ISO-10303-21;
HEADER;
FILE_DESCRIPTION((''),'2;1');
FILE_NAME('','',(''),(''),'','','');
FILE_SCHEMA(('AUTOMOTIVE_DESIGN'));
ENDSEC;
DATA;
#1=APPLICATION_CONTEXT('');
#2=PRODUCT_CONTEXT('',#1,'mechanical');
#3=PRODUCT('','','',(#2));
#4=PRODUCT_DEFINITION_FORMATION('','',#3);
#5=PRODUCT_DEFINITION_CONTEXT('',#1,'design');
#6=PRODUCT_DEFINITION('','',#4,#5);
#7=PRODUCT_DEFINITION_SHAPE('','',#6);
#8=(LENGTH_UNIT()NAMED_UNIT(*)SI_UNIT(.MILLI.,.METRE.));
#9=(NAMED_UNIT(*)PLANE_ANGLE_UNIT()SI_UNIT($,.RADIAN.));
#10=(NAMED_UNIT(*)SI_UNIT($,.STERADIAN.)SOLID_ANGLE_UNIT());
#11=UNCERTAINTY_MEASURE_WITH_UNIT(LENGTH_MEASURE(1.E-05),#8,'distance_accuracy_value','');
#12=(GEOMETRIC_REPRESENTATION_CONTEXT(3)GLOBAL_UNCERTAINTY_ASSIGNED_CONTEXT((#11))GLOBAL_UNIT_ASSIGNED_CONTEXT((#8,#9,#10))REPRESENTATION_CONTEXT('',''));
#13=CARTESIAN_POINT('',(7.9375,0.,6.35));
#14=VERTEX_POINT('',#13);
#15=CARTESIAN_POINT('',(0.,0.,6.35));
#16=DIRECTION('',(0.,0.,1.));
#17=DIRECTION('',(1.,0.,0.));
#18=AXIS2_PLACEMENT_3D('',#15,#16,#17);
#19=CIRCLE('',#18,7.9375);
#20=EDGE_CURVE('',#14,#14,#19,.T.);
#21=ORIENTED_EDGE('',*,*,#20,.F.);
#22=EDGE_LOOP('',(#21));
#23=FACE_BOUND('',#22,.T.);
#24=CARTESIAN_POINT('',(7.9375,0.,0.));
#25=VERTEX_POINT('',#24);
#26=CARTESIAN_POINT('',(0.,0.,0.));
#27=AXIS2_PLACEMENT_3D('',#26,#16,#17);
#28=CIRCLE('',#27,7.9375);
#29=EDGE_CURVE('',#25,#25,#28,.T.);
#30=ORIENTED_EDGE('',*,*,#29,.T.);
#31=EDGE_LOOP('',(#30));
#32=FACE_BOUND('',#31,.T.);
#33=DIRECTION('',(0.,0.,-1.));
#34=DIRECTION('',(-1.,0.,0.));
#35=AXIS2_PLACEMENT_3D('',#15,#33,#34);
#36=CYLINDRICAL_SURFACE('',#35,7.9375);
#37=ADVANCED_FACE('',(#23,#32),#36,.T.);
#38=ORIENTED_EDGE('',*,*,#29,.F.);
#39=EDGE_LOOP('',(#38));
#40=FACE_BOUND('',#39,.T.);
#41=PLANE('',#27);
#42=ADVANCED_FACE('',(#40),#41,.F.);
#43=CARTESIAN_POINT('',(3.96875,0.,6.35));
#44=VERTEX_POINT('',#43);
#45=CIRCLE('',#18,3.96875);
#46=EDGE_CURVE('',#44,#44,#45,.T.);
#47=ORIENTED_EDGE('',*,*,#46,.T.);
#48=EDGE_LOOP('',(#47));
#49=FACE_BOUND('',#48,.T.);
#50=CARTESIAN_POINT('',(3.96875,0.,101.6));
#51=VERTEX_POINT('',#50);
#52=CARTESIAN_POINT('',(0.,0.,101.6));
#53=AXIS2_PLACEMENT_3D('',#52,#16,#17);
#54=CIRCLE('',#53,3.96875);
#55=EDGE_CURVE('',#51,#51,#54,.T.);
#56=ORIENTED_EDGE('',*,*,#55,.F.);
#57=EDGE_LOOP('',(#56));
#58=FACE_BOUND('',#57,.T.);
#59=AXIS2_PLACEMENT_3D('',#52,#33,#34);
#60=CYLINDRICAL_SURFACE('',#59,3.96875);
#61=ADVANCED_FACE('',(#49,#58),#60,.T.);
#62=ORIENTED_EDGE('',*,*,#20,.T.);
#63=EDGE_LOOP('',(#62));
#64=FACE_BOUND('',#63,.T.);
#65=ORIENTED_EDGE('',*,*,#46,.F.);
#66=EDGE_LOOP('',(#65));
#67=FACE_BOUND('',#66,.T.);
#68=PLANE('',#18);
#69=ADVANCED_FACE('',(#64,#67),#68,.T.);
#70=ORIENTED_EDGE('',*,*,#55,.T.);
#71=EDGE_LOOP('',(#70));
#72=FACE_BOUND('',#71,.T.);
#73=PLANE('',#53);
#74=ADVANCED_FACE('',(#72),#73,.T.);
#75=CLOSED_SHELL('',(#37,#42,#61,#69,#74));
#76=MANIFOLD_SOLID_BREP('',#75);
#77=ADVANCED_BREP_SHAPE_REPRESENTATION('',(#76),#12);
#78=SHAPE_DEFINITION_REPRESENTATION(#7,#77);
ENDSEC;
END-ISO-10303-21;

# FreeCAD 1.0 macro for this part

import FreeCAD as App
import Part
import Sketcher
from FreeCAD import Vector
Q = App.Units.Quantity

doc = App.newDocument("Part")
body = doc.addObject("PartDesign::Body", "Body")

sketch1 = body.newObject("Sketcher::SketchObject", "Sketch")
sketch1.AttachmentSupport = (doc.getObject("XY_Plane"), [""])
sketch1.MapMode = "FlatFace"
sketch1.addGeometry(Part.Circle(Vector(0, 0, 0), Vector(0, 0, 1), 8), False)
sketch1.addConstraint(Sketcher.Constraint("Coincident", 0, 3, -1, 1))
sketch1.addConstraint(Sketcher.Constraint("Diameter", 0, Q("0.625 in")))
pad1 = body.newObject("PartDesign::Pad", "Pad")
pad1.Profile = sketch1
pad1.Length = Q("0.25 in")

sketch2 = body.newObject("Sketcher::SketchObject", "Sketch001")
sketch2.AttachmentSupport = (doc.getObject("XY_Plane"), [""])
sketch2.MapMode = "FlatFace"
sketch2.AttachmentOffset = App.Placement(Vector(0, 0, 0.25 * 25.4), App.Rotation())
sketch2.addGeometry(Part.Circle(Vector(0, 0, 0), Vector(0, 0, 1), 4), False)
sketch2.addConstraint(Sketcher.Constraint("Coincident", 0, 3, -1, 1))
sketch2.addConstraint(Sketcher.Constraint("Diameter", 0, Q("0.3125 in")))
pad2 = body.newObject("PartDesign::Pad", "Pad001")
pad2.Profile = sketch2
pad2.Length = Q("3.75 in")

doc.recompute()
